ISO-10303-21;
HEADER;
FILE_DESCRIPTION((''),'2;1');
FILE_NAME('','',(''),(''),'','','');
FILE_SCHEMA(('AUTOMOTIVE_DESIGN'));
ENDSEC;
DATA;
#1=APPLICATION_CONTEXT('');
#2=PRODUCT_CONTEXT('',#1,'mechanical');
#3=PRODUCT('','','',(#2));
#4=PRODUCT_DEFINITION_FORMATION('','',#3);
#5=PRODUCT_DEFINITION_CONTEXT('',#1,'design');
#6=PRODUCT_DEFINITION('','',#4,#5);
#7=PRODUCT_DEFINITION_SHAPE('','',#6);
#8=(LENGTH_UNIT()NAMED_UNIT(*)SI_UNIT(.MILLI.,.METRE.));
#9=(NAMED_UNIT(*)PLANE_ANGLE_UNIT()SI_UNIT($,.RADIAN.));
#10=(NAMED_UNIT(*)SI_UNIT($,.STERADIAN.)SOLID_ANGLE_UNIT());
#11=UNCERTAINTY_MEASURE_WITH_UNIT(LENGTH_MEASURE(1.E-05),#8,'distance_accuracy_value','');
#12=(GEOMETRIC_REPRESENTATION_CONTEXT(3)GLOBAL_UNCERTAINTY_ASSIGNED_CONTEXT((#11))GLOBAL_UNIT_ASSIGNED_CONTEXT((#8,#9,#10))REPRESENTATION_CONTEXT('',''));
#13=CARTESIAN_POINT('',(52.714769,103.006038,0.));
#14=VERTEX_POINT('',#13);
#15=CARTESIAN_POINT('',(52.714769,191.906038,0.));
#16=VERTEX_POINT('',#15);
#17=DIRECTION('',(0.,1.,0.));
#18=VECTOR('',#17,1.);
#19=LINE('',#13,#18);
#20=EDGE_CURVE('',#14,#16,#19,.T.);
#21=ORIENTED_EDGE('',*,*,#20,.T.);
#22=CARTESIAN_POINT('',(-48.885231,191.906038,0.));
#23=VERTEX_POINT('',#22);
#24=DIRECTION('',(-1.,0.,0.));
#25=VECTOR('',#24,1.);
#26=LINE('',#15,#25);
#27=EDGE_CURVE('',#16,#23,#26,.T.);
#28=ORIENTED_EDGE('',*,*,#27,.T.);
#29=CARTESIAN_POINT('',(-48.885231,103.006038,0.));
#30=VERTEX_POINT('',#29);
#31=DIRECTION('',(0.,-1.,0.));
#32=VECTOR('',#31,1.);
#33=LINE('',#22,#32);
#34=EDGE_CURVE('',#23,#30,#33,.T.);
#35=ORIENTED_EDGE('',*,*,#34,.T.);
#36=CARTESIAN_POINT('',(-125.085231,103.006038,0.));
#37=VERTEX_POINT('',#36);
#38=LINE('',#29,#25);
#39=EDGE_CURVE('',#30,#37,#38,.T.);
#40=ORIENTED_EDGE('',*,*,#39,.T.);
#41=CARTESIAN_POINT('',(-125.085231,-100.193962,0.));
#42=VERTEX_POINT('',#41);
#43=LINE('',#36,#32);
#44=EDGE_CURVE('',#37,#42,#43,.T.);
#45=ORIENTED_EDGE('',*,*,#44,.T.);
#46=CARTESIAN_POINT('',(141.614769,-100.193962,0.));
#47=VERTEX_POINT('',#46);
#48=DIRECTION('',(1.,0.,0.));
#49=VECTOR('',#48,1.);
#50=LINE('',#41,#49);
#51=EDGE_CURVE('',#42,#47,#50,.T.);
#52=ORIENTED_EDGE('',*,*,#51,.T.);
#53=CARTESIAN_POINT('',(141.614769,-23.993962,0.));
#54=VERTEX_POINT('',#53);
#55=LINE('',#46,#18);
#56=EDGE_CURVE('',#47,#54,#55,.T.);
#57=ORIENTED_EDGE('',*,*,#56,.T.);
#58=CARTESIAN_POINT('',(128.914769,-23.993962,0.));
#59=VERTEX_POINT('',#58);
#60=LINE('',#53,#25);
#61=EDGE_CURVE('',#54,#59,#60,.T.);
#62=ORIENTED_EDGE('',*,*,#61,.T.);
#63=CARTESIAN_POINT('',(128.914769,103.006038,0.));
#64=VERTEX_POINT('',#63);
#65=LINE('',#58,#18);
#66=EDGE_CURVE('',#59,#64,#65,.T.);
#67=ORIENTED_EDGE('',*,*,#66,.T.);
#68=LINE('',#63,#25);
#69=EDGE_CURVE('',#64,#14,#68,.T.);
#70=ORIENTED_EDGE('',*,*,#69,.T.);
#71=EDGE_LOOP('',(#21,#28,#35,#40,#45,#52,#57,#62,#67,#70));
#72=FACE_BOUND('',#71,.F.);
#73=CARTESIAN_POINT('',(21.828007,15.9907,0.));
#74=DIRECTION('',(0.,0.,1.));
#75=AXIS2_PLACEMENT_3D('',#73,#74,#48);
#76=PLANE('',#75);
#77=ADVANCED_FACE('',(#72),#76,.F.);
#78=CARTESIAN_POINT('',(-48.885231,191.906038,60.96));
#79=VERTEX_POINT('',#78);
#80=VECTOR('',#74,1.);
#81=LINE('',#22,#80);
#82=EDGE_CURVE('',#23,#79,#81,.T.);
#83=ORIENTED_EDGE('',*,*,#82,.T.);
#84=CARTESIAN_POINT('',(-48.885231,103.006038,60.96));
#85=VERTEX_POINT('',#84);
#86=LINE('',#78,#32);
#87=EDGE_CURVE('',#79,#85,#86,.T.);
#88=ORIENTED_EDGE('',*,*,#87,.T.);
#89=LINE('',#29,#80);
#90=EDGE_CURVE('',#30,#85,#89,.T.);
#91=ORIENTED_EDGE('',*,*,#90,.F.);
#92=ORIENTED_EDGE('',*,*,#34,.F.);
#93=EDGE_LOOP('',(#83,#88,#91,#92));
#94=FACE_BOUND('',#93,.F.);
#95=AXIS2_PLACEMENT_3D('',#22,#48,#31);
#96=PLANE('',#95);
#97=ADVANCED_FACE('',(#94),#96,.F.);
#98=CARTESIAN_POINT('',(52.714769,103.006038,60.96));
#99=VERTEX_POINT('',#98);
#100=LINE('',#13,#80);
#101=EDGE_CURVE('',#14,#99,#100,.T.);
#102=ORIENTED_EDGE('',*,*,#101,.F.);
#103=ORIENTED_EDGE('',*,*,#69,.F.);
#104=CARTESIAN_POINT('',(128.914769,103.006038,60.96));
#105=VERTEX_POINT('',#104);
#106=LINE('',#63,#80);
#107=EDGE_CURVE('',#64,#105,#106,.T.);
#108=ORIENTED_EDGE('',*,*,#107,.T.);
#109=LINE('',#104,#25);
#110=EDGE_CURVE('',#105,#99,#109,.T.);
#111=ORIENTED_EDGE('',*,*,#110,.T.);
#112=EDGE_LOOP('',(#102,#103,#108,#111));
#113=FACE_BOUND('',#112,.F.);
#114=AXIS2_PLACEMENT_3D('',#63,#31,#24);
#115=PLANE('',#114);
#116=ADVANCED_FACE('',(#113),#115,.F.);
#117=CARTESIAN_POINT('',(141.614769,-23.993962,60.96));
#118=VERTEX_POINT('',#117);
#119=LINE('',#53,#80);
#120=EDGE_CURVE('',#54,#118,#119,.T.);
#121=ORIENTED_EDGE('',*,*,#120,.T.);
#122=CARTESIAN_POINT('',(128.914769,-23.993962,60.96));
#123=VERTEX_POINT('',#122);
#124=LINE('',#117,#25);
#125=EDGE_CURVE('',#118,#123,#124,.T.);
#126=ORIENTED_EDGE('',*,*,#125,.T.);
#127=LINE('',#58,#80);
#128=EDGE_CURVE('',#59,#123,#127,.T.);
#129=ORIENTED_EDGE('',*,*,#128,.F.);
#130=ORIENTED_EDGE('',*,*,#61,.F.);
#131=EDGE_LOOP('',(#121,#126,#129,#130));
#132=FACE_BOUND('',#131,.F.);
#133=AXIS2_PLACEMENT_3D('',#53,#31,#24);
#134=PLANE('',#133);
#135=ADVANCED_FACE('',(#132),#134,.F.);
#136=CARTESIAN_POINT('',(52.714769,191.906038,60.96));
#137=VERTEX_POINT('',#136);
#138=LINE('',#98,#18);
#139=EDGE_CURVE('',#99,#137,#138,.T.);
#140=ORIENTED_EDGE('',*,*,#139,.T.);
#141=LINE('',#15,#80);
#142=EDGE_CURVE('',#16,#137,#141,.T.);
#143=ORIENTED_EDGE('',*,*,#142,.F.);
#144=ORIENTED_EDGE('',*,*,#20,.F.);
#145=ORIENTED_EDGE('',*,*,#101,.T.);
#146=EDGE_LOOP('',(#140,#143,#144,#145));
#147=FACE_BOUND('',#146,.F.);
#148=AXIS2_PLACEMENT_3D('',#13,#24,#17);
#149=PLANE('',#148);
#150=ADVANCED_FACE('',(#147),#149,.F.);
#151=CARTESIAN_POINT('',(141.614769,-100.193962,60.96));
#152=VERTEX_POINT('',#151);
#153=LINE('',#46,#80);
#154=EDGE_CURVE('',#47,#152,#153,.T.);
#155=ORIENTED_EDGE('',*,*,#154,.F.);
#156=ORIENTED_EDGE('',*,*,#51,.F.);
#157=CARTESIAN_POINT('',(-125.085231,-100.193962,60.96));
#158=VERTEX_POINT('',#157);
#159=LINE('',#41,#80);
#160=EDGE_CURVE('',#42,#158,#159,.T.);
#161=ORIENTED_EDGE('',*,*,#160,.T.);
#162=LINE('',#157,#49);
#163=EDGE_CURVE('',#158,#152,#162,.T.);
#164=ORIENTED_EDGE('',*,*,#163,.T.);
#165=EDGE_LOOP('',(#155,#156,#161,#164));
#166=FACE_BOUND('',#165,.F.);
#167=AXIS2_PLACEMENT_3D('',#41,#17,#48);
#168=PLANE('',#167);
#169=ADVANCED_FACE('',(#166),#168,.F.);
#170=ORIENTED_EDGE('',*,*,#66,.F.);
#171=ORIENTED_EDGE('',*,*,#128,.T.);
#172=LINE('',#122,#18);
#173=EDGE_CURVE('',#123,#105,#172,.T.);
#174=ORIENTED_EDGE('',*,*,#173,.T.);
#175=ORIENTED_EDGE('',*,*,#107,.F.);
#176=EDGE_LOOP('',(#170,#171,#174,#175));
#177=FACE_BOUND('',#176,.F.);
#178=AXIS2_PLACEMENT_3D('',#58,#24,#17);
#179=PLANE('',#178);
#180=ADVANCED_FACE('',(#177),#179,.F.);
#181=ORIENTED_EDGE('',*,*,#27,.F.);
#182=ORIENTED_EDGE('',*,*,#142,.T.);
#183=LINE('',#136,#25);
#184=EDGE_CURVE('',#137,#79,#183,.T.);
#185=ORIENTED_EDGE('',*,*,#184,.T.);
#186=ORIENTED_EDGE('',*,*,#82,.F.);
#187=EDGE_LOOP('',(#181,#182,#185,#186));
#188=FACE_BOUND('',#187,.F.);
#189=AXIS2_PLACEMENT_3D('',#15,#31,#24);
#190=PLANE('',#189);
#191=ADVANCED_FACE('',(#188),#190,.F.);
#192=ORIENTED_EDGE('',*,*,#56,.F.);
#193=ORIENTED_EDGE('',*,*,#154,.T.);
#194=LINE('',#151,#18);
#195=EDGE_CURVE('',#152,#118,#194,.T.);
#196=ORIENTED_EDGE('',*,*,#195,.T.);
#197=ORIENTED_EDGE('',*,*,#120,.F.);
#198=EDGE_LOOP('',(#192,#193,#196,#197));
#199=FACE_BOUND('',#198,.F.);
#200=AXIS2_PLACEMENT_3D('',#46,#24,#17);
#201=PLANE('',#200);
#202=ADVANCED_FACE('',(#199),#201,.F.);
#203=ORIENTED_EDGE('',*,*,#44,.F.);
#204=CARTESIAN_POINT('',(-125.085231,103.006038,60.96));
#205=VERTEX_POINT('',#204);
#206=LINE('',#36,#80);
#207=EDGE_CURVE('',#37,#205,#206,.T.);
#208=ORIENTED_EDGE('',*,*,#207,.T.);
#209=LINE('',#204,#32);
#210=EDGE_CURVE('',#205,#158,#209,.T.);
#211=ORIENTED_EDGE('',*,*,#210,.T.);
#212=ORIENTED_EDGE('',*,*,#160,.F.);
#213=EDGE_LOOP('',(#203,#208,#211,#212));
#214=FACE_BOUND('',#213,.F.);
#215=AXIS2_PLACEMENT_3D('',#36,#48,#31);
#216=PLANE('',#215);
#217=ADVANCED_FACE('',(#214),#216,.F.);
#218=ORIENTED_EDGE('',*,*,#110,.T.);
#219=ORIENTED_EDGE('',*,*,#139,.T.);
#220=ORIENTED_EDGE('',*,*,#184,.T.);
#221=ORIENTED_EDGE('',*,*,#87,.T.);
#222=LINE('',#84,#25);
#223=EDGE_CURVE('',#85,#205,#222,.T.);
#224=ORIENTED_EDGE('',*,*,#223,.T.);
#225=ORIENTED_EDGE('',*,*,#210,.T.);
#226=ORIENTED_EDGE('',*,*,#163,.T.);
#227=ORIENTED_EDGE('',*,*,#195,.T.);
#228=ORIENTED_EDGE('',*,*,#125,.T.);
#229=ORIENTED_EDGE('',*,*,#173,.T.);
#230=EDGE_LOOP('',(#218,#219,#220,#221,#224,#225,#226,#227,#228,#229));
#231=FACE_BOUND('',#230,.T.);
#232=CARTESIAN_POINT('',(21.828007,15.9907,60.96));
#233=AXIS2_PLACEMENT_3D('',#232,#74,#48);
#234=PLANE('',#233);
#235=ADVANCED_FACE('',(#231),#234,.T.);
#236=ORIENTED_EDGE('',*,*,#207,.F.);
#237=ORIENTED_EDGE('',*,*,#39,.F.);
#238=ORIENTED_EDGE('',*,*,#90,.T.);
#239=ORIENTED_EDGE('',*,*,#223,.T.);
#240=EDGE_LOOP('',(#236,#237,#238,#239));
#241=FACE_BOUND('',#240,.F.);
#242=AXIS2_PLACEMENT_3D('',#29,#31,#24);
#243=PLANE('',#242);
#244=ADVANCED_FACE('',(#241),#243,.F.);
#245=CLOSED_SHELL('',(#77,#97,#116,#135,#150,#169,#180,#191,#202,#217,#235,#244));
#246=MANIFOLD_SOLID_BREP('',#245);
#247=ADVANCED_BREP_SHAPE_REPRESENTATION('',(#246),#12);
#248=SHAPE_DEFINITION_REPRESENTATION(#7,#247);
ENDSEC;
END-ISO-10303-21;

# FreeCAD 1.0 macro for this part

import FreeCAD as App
import Part
import Sketcher

V = App.Vector
Q = App.Units.Quantity

doc = App.newDocument("Part")
body = doc.addObject("PartDesign::Body", "Body")

sketch1 = body.newObject("Sketcher::SketchObject", "Sketch")
sketch1.AttachmentSupport = (doc.getObject("XY_Plane"), [""])
sketch1.MapMode = "FlatFace"
sketch1.addGeometry([
    Part.LineSegment(V(-125, -100, 0), V(142, -100, 0)),
    Part.LineSegment(V(142, -100, 0), V(142, -24, 0)),
    Part.LineSegment(V(142, -24, 0), V(129, -24, 0)),
    Part.LineSegment(V(129, -24, 0), V(129, 103, 0)),
    Part.LineSegment(V(129, 103, 0), V(53, 103, 0)),
    Part.LineSegment(V(53, 103, 0), V(53, 192, 0)),
    Part.LineSegment(V(53, 192, 0), V(-49, 192, 0)),
    Part.LineSegment(V(-49, 192, 0), V(-49, 103, 0)),
    Part.LineSegment(V(-49, 103, 0), V(-125, 103, 0)),
    Part.LineSegment(V(-125, 103, 0), V(-125, -100, 0)),
], False)
sketch1.addConstraint([
    Sketcher.Constraint("Coincident", 0, 2, 1, 1),
    Sketcher.Constraint("Coincident", 1, 2, 2, 1),
    Sketcher.Constraint("Coincident", 2, 2, 3, 1),
    Sketcher.Constraint("Coincident", 3, 2, 4, 1),
    Sketcher.Constraint("Coincident", 4, 2, 5, 1),
    Sketcher.Constraint("Coincident", 5, 2, 6, 1),
    Sketcher.Constraint("Coincident", 6, 2, 7, 1),
    Sketcher.Constraint("Coincident", 7, 2, 8, 1),
    Sketcher.Constraint("Coincident", 8, 2, 9, 1),
    Sketcher.Constraint("Coincident", 9, 2, 0, 1),
    Sketcher.Constraint("Horizontal", 0),
    Sketcher.Constraint("Vertical", 1),
    Sketcher.Constraint("Horizontal", 2),
    Sketcher.Constraint("Vertical", 3),
    Sketcher.Constraint("Horizontal", 4),
    Sketcher.Constraint("Vertical", 5),
    Sketcher.Constraint("Horizontal", 6),
    Sketcher.Constraint("Vertical", 7),
    Sketcher.Constraint("Horizontal", 8),
    Sketcher.Constraint("Vertical", 9),
    Sketcher.Constraint("Horizontal", 4, 2, 7, 2),
    Sketcher.Constraint("Equal", 4, 8),
    Sketcher.Constraint("Equal", 8, 1),
    Sketcher.Constraint("DistanceX", 4, 2, 4, 1, Q("3 in")),
    Sketcher.Constraint("DistanceX", 6, 2, 6, 1, Q("4 in")),
    Sketcher.Constraint("DistanceY", 3, 1, 3, 2, Q("5 in")),
    Sketcher.Constraint("DistanceX", 0, 1, 0, 2, Q("10.5 in")),
    Sketcher.Constraint("DistanceY", 5, 1, 5, 2, Q("3.5 in")),
    Sketcher.Constraint("DistanceX", -1, 1, 0, 2, Q("141.614769 mm")),
    Sketcher.Constraint("DistanceY", 0, 2, -1, 1, Q("100.193962 mm")),
])
pad1 = body.newObject("PartDesign::Pad", "Pad")
pad1.Profile = sketch1
pad1.Length = Q("2.4 in")

doc.recompute()
